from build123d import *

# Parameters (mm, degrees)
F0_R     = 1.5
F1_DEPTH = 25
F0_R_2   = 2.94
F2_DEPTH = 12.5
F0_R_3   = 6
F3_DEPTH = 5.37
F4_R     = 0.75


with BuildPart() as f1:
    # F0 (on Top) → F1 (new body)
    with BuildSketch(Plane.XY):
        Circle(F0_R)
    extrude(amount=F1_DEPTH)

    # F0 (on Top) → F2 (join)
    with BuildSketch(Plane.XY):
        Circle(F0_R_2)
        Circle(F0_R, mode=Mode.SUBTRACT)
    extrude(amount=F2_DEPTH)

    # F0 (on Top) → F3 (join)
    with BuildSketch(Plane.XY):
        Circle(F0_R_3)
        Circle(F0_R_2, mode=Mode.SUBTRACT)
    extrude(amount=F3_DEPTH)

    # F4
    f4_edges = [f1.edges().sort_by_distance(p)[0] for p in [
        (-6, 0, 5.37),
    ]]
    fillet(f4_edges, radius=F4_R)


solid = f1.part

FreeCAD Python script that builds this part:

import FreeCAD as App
import Part
import Sketcher


def edges_at(feature, points):
    """Names of the edges that pass closest to the given points."""
    edges = feature.Shape.Edges
    near = lambda p: min(range(len(edges)), key=lambda i: edges[i].distToShape(Part.Vertex(*p))[0])
    return sorted({f"Edge{near(p) + 1}" for p in points})

doc = App.newDocument("Part")
body = doc.addObject("PartDesign::Body", "Body")

sketch1 = body.newObject("Sketcher::SketchObject", "Sketch")
sketch1.AttachmentSupport = (doc.getObject("XY_Plane"), [""])
sketch1.MapMode = "FlatFace"
sketch1.addGeometry(Part.Circle(App.Vector(0, 0, 0), App.Vector(0, 0, 1), 1.5), False)
sketch1.addConstraint([
    Sketcher.Constraint("Coincident", 0, 3, -1, 1),
    Sketcher.Constraint("Diameter", 0, 3.0),
])
pad1 = body.newObject("PartDesign::Pad", "Pad")
pad1.Profile = sketch1
pad1.Length = 25

sketch2 = body.newObject("Sketcher::SketchObject", "Sketch001")
sketch2.AttachmentSupport = (doc.getObject("XY_Plane"), [""])
sketch2.MapMode = "FlatFace"
sketch2.addGeometry([
    Part.Circle(App.Vector(0, 0, 0), App.Vector(0, 0, 1), 2.94),
    Part.Circle(App.Vector(0, 0, 0), App.Vector(0, 0, 1), 1.5),
], False)
sketch2.addConstraint([
    Sketcher.Constraint("Coincident", 0, 3, -1, 1),
    Sketcher.Constraint("Coincident", 1, 3, -1, 1),
    Sketcher.Constraint("Diameter", 1, 3.0),
    Sketcher.Constraint("Diameter", 0, 5.88),
])
pad2 = body.newObject("PartDesign::Pad", "Pad001")
pad2.Profile = sketch2
pad2.Length = 12.5

sketch3 = body.newObject("Sketcher::SketchObject", "Sketch002")
sketch3.AttachmentSupport = (doc.getObject("XY_Plane"), [""])
sketch3.MapMode = "FlatFace"
sketch3.addGeometry([
    Part.Circle(App.Vector(0, 0, 0), App.Vector(0, 0, 1), 6),
    Part.Circle(App.Vector(0, 0, 0), App.Vector(0, 0, 1), 2.94),
], False)
sketch3.addConstraint([
    Sketcher.Constraint("Coincident", 0, 3, -1, 1),
    Sketcher.Constraint("Coincident", 1, 3, -1, 1),
    Sketcher.Constraint("Diameter", 0, 12.0),
    Sketcher.Constraint("Diameter", 1, 5.88),
])
pad3 = body.newObject("PartDesign::Pad", "Pad002")
pad3.Profile = sketch3
pad3.Length = 5.37
doc.recompute()

fillet = body.newObject("PartDesign::Fillet", "Fillet")
fillet.Base = (pad3, edges_at(pad3, [(-6, 0, 5.37)]))
fillet.Radius = 0.75

doc.recompute()
